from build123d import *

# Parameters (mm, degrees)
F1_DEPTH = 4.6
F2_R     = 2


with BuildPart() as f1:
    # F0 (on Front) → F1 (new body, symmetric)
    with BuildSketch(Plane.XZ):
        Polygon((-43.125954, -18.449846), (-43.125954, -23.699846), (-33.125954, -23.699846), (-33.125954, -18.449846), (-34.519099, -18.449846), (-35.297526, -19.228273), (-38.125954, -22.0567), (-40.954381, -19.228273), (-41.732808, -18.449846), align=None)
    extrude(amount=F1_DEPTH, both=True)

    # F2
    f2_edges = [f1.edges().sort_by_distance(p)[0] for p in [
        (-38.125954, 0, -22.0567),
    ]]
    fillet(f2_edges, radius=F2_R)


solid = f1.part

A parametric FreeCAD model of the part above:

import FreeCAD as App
import Part
import Sketcher
Q = App.Units.Quantity


def edges_at(feature, points):
    """Names of the edges that pass closest to the given points."""
    edges = feature.Shape.Edges
    near = lambda p: min(range(len(edges)), key=lambda i: edges[i].distToShape(Part.Vertex(*p))[0])
    return sorted({f"Edge{near(p) + 1}" for p in points})

doc = App.newDocument("Part")
body = doc.addObject("PartDesign::Body", "Body")

# Sketch on XZ plane
sketch1 = doc.addObject("Sketcher::SketchObject", "Sketch")
body.addObject(sketch1)
sketch1.AttachmentSupport = (doc.XZ_Plane, [""])
sketch1.MapMode = "FlatFace"
sketch1.addGeometry([
    Part.LineSegment(App.Vector(-43.1, -18.4, 0), App.Vector(-43.1, -23.7, 0)),  # 0
    Part.LineSegment(App.Vector(-43.1, -23.7, 0), App.Vector(-33.1, -23.7, 0)),  # 1
    Part.LineSegment(App.Vector(-33.1, -23.7, 0), App.Vector(-33.1, -18.4, 0)),  # 2
    Part.LineSegment(App.Vector(-33.1, -18.4, 0), App.Vector(-34.5, -18.4, 0)),  # 3
    Part.LineSegment(App.Vector(-34.5, -18.4, 0), App.Vector(-35.3, -19.2, 0)),  # 4
    Part.LineSegment(App.Vector(-35.3, -19.2, 0), App.Vector(-38.1, -22.1, 0)),  # 5
    Part.LineSegment(App.Vector(-38.1, -22.1, 0), App.Vector(-41.7, -18.4, 0)),  # 6
    Part.LineSegment(App.Vector(-41.7, -18.4, 0), App.Vector(-43.1, -18.4, 0)),  # 7
], False)
sketch1.addConstraint([
    Sketcher.Constraint("Coincident", 0, 2, 1, 1),
    Sketcher.Constraint("Coincident", 1, 2, 2, 1),
    Sketcher.Constraint("Coincident", 2, 2, 3, 1),
    Sketcher.Constraint("Coincident", 3, 2, 4, 1),
    Sketcher.Constraint("Coincident", 4, 2, 5, 1),
    Sketcher.Constraint("Coincident", 5, 2, 6, 1),
    Sketcher.Constraint("Coincident", 6, 2, 7, 1),
    Sketcher.Constraint("Coincident", 7, 2, 0, 1),
    Sketcher.Constraint("Vertical", 0),
    Sketcher.Constraint("Horizontal", 1),
    Sketcher.Constraint("Vertical", 2),
    Sketcher.Constraint("Horizontal", 3),
    Sketcher.Constraint("Horizontal", 7),
    Sketcher.Constraint("Parallel", 4, 5),
    Sketcher.Constraint("Perpendicular", 5, 6),
    Sketcher.Constraint("Horizontal", 3, 2, 6, 2),
    Sketcher.Constraint("Equal", 3, 7),
    Sketcher.Constraint("DistanceX", 1, 1, 1, 2, Q("10 mm")),
    Sketcher.Constraint("Angle", 4, Q("-135 deg")),
    Sketcher.Constraint("Distance", 5, Q("4.000001 mm")),
    Sketcher.Constraint("DistanceY", 0, 2, 0, 1, Q("5.25 mm")),
    Sketcher.Constraint("DistanceX", 3, 2, -1, 1, Q("34.519099 mm")),
    Sketcher.Constraint("DistanceY", 5, 2, -1, 1, Q("22.0567 mm")),
    Sketcher.Constraint("Distance", 6, Q("5.100862 mm")),
])
pad1 = doc.addObject("PartDesign::Pad", "Pad")
body.addObject(pad1)
pad1.Profile = sketch1
pad1.Length = 9.2
pad1.Midplane = True
doc.recompute()

fillet = doc.addObject("PartDesign::Fillet", "Fillet")
body.addObject(fillet)
fillet.Base = (pad1, edges_at(pad1, [(-38.126, 0, -22.057)]))
fillet.Radius = 2

doc.recompute()
